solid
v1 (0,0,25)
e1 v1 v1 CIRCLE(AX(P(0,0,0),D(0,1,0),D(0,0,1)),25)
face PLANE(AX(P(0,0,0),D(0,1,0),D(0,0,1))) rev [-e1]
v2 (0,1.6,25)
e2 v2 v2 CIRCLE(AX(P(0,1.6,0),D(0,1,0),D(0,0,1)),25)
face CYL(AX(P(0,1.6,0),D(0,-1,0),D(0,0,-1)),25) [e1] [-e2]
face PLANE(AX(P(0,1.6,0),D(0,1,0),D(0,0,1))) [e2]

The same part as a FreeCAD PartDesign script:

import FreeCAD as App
import Part
import Sketcher

V = App.Vector
Q = App.Units.Quantity

doc = App.newDocument("Part")
body = doc.addObject("PartDesign::Body", "Body")

sketch1 = doc.addObject("Sketcher::SketchObject", "Sketch")
body.addObject(sketch1)
sketch1.AttachmentSupport = (doc.XZ_Plane, [""])
sketch1.MapMode = "FlatFace"
sketch1.addGeometry(Part.Circle(V(0, 0, 0), V(0, 0, 1), 25), False)
sketch1.addConstraint([
    Sketcher.Constraint("Coincident", 0, 3, -1, 1),
    Sketcher.Constraint("Diameter", 0, Q("50 mm")),
])
pad1 = doc.addObject("PartDesign::Pad", "Pad")
body.addObject(pad1)
pad1.Profile = sketch1
pad1.Length = 1.6
pad1.Reversed = True

doc.recompute()
